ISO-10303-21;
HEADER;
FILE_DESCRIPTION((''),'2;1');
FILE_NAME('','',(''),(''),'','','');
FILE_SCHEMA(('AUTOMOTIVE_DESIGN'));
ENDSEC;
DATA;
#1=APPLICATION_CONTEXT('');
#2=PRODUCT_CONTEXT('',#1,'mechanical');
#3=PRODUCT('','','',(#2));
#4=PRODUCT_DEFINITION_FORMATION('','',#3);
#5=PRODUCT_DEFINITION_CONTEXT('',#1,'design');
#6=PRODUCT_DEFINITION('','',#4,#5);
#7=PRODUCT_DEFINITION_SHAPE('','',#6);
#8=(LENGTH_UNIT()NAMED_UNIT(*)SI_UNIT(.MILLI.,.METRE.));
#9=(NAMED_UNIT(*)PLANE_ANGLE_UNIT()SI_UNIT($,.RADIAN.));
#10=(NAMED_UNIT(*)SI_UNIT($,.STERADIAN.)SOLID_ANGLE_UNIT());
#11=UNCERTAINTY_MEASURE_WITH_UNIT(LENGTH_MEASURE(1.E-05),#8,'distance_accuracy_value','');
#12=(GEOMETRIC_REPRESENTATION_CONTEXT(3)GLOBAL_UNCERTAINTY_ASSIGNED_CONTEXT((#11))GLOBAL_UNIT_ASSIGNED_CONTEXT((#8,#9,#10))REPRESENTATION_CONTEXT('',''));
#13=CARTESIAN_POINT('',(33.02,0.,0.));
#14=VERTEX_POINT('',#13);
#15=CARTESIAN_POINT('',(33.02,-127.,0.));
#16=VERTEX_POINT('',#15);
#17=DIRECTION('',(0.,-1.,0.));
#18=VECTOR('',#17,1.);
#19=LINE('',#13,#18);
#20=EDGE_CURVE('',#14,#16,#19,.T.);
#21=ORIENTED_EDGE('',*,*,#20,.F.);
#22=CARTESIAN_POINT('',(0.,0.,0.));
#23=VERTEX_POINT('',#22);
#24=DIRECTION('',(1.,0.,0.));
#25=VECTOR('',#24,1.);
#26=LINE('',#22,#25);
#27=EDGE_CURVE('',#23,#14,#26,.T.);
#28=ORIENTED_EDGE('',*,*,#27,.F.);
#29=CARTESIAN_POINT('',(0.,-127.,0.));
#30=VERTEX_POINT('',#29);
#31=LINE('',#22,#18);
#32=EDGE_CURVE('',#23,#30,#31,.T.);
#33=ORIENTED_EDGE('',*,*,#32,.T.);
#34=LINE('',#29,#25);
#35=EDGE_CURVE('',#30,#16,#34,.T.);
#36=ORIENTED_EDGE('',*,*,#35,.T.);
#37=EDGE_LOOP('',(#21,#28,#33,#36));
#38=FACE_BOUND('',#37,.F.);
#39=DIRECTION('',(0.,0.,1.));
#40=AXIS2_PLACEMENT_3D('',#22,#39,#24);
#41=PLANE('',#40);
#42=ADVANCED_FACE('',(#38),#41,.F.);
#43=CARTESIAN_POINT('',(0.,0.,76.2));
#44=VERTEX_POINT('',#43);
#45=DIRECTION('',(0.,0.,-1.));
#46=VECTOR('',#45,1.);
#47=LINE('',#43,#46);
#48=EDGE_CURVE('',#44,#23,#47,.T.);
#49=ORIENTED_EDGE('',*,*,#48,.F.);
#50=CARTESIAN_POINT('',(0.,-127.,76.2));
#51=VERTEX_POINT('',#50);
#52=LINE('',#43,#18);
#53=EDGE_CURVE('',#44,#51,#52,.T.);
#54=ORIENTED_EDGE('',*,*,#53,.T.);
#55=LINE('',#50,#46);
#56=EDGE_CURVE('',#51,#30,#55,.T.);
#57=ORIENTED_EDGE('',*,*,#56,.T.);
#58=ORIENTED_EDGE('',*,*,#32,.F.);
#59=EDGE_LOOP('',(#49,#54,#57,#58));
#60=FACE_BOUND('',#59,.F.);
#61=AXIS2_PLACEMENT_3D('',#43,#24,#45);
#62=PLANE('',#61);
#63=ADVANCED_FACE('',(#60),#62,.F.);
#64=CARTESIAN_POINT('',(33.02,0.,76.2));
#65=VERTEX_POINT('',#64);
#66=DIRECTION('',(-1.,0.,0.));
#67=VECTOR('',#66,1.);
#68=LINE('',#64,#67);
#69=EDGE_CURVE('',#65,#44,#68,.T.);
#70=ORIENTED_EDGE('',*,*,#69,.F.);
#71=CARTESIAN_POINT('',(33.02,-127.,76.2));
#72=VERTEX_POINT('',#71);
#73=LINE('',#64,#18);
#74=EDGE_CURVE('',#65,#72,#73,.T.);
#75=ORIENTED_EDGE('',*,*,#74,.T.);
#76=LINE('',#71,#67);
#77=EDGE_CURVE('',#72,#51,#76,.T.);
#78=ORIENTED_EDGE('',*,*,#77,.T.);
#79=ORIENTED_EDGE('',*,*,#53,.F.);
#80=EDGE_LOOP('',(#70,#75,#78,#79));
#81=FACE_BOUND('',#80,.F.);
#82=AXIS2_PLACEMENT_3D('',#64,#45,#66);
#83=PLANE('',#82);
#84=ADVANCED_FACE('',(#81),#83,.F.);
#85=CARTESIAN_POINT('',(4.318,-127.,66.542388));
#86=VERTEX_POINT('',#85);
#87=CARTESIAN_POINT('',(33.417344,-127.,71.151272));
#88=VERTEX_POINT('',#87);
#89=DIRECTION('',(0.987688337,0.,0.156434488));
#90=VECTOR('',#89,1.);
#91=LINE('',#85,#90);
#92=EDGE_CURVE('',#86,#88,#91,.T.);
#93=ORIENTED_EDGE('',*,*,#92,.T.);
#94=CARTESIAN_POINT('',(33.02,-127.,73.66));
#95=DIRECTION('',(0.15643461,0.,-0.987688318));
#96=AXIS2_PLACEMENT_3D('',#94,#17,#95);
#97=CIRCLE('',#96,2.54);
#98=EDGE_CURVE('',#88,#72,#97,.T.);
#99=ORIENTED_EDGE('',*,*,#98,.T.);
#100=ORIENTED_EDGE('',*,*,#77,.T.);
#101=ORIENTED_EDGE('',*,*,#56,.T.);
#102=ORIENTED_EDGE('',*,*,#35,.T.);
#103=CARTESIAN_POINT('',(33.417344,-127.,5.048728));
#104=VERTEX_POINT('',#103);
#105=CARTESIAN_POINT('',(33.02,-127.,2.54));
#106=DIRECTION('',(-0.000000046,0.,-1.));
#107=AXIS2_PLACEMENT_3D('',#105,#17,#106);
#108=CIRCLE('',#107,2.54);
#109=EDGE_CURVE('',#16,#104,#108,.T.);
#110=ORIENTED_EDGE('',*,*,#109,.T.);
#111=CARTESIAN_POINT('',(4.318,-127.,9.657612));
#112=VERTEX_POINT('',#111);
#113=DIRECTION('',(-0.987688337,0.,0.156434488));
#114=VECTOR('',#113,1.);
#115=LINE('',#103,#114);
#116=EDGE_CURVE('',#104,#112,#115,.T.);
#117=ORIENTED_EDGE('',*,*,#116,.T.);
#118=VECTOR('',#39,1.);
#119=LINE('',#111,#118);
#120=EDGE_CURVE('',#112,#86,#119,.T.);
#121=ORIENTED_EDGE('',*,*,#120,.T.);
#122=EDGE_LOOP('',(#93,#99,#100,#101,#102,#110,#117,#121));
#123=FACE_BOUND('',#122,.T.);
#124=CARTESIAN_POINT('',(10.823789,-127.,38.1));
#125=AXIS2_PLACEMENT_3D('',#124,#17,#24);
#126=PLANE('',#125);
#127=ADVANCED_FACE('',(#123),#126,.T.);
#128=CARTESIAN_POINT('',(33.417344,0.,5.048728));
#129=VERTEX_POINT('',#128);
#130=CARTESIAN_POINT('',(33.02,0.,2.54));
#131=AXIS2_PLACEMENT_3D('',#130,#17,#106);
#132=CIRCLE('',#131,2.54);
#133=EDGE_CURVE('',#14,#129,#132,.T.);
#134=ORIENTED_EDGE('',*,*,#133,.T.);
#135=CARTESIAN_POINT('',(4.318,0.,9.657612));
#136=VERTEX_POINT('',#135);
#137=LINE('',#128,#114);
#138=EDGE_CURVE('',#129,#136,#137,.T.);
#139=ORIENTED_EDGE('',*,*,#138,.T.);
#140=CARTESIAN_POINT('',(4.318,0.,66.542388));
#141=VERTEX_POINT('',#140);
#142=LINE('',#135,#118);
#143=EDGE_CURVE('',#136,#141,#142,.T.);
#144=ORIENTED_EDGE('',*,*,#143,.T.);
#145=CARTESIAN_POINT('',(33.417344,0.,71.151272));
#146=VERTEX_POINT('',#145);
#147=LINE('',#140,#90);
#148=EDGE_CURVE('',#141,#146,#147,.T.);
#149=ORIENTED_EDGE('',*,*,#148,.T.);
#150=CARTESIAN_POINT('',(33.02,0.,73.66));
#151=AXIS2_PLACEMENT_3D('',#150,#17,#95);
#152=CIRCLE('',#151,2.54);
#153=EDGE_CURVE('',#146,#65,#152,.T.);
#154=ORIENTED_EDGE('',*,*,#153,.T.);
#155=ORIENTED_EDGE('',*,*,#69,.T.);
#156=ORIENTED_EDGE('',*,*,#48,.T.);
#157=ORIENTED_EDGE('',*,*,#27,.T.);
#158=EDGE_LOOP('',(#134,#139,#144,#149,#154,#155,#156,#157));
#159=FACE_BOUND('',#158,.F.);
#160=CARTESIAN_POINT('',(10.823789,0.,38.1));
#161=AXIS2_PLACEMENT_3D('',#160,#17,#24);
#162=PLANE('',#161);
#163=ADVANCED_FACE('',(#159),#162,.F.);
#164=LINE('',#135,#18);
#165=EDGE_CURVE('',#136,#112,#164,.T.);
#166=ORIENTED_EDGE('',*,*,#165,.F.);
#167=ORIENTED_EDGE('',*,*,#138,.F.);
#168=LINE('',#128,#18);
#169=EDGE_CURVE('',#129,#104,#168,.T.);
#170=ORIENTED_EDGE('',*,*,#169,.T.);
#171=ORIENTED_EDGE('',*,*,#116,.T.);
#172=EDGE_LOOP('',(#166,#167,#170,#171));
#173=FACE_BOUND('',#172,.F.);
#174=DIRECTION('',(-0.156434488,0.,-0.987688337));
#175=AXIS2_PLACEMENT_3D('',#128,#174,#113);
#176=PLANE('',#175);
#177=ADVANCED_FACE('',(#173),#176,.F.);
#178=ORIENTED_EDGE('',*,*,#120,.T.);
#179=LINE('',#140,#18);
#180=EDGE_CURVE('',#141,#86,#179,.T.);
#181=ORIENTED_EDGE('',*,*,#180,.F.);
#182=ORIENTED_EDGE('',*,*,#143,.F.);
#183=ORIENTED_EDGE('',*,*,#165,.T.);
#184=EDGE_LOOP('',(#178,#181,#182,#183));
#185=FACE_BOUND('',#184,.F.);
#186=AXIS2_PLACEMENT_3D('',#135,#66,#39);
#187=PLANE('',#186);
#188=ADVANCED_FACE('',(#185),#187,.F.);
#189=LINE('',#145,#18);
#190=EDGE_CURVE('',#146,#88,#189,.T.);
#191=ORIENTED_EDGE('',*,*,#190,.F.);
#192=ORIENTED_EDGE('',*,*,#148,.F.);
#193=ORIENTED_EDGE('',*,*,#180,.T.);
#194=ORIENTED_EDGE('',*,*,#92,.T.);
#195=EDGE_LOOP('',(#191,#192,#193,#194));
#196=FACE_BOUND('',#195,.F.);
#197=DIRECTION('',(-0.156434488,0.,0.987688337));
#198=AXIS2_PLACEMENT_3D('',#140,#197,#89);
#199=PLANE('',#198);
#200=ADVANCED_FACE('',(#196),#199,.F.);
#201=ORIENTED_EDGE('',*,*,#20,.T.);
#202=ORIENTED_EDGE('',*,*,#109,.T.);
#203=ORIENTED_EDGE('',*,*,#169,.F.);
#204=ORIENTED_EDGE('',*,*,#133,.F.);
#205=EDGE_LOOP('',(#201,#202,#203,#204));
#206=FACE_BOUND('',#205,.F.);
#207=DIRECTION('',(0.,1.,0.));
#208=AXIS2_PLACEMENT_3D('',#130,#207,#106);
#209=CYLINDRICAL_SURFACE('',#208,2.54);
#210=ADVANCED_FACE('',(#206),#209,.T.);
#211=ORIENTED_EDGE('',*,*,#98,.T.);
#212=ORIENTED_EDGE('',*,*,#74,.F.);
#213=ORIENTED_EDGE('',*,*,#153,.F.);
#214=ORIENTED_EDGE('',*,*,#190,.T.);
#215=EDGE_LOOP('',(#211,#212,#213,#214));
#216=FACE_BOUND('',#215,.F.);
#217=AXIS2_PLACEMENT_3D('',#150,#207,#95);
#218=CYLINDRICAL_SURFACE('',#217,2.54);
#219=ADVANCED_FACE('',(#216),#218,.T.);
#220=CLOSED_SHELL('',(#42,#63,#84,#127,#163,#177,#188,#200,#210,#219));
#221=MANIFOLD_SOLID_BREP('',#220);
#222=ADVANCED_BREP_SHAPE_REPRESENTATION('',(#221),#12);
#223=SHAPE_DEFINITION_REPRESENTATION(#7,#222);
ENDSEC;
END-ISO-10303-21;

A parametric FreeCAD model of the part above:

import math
import FreeCAD as App
import Part
import Sketcher
Q = App.Units.Quantity

doc = App.newDocument("Part")
params = doc.addObject("Spreadsheet::Sheet", "Params")
for row, (alias, value) in enumerate([
    ("sketch1_radius", "0.1 in"),
    ("sketch1_height", "3 in"),
    ("sketch1_width", "1.3 in"),
    ("pad1_length", "5 in"),
], start=1):
    params.set(f"A{row}", alias)
    params.set(f"B{row}", "=" + value)
    params.setAlias(f"B{row}", alias)

body = doc.addObject("PartDesign::Body", "Body")

sketch1 = body.newObject("Sketcher::SketchObject", "Sketch")
sketch1.AttachmentSupport = (doc.getObject("XZ_Plane"), [""])
sketch1.MapMode = "FlatFace"
sketch1.addGeometry(Part.LineSegment(App.Vector(0, 76.2, 0), App.Vector(0, 0, 0)), False)
sketch1.addGeometry(Part.LineSegment(App.Vector(0, 0, 0), App.Vector(33, 0, 0)), False)
sketch1.addGeometry(Part.ArcOfCircle(Part.Circle(App.Vector(33, 2.5, 0), App.Vector(0, 0, 1), 2.5), math.radians(-90), math.radians(81)), False)
sketch1.addGeometry(Part.LineSegment(App.Vector(33.4, 5, 0), App.Vector(4.3, 9.7, 0)), False)
sketch1.addGeometry(Part.LineSegment(App.Vector(4.3, 9.7, 0), App.Vector(4.3, 66.5, 0)), False)
sketch1.addGeometry(Part.LineSegment(App.Vector(4.3, 66.5, 0), App.Vector(33.4, 71.2, 0)), False)
sketch1.addGeometry(Part.ArcOfCircle(Part.Circle(App.Vector(33, 73.7, 0), App.Vector(0, 0, 1), 2.5), math.radians(-81), math.radians(90)), False)
sketch1.addGeometry(Part.LineSegment(App.Vector(33, 76.2, 0), App.Vector(0, 76.2, 0)), False)
sketch1.addConstraint(Sketcher.Constraint("Coincident", 0, 2, 1, 1))
sketch1.addConstraint(Sketcher.Constraint("Tangent", 1, 2, 2, 1))
sketch1.addConstraint(Sketcher.Constraint("Tangent", 2, 2, 3, 1))
sketch1.addConstraint(Sketcher.Constraint("Coincident", 3, 2, 4, 1))
sketch1.addConstraint(Sketcher.Constraint("Coincident", 4, 2, 5, 1))
sketch1.addConstraint(Sketcher.Constraint("Tangent", 5, 2, 6, 1))
sketch1.addConstraint(Sketcher.Constraint("Tangent", 6, 2, 7, 1))
sketch1.addConstraint(Sketcher.Constraint("Coincident", 7, 2, 0, 1))
sketch1.addConstraint(Sketcher.Constraint("Vertical", 0))
sketch1.addConstraint(Sketcher.Constraint("Horizontal", 1))
sketch1.addConstraint(Sketcher.Constraint("Vertical", 4))
sketch1.addConstraint(Sketcher.Constraint("Horizontal", 7))
sketch1.addConstraint(Sketcher.Constraint("Coincident", 0, 2, -1, 1))
sketch1.addConstraint(Sketcher.Constraint("Equal", 2, 6))
sketch1.addConstraint(Sketcher.Constraint("Vertical", 2, 3, 6, 3))
sketch1.addConstraint(Sketcher.Constraint("Vertical", 2, 2, 5, 2))
sketch1.addConstraint(Sketcher.Constraint("Radius", 2, Q("0.1 in")))
sketch1.addConstraint(Sketcher.Constraint("DistanceY", 0, 2, 0, 1, Q("3 in")))
sketch1.addConstraint(Sketcher.Constraint("DistanceX", 1, 1, 1, 2, Q("1.3 in")))
sketch1.addConstraint(Sketcher.Constraint("Angle", 3, Q("170.999999 deg")))
sketch1.addConstraint(Sketcher.Constraint("DistanceX", -1, 1, 3, 2, Q("0.17 in")))
sketch1.setExpression("Constraints[16]", "Params.sketch1_radius")
sketch1.setExpression("Constraints[17]", "Params.sketch1_height")
sketch1.setExpression("Constraints[18]", "Params.sketch1_width")
pad1 = body.newObject("PartDesign::Pad", "Pad")
pad1.Profile = sketch1
pad1.setExpression("Length", "Params.pad1_length")

doc.recompute()
